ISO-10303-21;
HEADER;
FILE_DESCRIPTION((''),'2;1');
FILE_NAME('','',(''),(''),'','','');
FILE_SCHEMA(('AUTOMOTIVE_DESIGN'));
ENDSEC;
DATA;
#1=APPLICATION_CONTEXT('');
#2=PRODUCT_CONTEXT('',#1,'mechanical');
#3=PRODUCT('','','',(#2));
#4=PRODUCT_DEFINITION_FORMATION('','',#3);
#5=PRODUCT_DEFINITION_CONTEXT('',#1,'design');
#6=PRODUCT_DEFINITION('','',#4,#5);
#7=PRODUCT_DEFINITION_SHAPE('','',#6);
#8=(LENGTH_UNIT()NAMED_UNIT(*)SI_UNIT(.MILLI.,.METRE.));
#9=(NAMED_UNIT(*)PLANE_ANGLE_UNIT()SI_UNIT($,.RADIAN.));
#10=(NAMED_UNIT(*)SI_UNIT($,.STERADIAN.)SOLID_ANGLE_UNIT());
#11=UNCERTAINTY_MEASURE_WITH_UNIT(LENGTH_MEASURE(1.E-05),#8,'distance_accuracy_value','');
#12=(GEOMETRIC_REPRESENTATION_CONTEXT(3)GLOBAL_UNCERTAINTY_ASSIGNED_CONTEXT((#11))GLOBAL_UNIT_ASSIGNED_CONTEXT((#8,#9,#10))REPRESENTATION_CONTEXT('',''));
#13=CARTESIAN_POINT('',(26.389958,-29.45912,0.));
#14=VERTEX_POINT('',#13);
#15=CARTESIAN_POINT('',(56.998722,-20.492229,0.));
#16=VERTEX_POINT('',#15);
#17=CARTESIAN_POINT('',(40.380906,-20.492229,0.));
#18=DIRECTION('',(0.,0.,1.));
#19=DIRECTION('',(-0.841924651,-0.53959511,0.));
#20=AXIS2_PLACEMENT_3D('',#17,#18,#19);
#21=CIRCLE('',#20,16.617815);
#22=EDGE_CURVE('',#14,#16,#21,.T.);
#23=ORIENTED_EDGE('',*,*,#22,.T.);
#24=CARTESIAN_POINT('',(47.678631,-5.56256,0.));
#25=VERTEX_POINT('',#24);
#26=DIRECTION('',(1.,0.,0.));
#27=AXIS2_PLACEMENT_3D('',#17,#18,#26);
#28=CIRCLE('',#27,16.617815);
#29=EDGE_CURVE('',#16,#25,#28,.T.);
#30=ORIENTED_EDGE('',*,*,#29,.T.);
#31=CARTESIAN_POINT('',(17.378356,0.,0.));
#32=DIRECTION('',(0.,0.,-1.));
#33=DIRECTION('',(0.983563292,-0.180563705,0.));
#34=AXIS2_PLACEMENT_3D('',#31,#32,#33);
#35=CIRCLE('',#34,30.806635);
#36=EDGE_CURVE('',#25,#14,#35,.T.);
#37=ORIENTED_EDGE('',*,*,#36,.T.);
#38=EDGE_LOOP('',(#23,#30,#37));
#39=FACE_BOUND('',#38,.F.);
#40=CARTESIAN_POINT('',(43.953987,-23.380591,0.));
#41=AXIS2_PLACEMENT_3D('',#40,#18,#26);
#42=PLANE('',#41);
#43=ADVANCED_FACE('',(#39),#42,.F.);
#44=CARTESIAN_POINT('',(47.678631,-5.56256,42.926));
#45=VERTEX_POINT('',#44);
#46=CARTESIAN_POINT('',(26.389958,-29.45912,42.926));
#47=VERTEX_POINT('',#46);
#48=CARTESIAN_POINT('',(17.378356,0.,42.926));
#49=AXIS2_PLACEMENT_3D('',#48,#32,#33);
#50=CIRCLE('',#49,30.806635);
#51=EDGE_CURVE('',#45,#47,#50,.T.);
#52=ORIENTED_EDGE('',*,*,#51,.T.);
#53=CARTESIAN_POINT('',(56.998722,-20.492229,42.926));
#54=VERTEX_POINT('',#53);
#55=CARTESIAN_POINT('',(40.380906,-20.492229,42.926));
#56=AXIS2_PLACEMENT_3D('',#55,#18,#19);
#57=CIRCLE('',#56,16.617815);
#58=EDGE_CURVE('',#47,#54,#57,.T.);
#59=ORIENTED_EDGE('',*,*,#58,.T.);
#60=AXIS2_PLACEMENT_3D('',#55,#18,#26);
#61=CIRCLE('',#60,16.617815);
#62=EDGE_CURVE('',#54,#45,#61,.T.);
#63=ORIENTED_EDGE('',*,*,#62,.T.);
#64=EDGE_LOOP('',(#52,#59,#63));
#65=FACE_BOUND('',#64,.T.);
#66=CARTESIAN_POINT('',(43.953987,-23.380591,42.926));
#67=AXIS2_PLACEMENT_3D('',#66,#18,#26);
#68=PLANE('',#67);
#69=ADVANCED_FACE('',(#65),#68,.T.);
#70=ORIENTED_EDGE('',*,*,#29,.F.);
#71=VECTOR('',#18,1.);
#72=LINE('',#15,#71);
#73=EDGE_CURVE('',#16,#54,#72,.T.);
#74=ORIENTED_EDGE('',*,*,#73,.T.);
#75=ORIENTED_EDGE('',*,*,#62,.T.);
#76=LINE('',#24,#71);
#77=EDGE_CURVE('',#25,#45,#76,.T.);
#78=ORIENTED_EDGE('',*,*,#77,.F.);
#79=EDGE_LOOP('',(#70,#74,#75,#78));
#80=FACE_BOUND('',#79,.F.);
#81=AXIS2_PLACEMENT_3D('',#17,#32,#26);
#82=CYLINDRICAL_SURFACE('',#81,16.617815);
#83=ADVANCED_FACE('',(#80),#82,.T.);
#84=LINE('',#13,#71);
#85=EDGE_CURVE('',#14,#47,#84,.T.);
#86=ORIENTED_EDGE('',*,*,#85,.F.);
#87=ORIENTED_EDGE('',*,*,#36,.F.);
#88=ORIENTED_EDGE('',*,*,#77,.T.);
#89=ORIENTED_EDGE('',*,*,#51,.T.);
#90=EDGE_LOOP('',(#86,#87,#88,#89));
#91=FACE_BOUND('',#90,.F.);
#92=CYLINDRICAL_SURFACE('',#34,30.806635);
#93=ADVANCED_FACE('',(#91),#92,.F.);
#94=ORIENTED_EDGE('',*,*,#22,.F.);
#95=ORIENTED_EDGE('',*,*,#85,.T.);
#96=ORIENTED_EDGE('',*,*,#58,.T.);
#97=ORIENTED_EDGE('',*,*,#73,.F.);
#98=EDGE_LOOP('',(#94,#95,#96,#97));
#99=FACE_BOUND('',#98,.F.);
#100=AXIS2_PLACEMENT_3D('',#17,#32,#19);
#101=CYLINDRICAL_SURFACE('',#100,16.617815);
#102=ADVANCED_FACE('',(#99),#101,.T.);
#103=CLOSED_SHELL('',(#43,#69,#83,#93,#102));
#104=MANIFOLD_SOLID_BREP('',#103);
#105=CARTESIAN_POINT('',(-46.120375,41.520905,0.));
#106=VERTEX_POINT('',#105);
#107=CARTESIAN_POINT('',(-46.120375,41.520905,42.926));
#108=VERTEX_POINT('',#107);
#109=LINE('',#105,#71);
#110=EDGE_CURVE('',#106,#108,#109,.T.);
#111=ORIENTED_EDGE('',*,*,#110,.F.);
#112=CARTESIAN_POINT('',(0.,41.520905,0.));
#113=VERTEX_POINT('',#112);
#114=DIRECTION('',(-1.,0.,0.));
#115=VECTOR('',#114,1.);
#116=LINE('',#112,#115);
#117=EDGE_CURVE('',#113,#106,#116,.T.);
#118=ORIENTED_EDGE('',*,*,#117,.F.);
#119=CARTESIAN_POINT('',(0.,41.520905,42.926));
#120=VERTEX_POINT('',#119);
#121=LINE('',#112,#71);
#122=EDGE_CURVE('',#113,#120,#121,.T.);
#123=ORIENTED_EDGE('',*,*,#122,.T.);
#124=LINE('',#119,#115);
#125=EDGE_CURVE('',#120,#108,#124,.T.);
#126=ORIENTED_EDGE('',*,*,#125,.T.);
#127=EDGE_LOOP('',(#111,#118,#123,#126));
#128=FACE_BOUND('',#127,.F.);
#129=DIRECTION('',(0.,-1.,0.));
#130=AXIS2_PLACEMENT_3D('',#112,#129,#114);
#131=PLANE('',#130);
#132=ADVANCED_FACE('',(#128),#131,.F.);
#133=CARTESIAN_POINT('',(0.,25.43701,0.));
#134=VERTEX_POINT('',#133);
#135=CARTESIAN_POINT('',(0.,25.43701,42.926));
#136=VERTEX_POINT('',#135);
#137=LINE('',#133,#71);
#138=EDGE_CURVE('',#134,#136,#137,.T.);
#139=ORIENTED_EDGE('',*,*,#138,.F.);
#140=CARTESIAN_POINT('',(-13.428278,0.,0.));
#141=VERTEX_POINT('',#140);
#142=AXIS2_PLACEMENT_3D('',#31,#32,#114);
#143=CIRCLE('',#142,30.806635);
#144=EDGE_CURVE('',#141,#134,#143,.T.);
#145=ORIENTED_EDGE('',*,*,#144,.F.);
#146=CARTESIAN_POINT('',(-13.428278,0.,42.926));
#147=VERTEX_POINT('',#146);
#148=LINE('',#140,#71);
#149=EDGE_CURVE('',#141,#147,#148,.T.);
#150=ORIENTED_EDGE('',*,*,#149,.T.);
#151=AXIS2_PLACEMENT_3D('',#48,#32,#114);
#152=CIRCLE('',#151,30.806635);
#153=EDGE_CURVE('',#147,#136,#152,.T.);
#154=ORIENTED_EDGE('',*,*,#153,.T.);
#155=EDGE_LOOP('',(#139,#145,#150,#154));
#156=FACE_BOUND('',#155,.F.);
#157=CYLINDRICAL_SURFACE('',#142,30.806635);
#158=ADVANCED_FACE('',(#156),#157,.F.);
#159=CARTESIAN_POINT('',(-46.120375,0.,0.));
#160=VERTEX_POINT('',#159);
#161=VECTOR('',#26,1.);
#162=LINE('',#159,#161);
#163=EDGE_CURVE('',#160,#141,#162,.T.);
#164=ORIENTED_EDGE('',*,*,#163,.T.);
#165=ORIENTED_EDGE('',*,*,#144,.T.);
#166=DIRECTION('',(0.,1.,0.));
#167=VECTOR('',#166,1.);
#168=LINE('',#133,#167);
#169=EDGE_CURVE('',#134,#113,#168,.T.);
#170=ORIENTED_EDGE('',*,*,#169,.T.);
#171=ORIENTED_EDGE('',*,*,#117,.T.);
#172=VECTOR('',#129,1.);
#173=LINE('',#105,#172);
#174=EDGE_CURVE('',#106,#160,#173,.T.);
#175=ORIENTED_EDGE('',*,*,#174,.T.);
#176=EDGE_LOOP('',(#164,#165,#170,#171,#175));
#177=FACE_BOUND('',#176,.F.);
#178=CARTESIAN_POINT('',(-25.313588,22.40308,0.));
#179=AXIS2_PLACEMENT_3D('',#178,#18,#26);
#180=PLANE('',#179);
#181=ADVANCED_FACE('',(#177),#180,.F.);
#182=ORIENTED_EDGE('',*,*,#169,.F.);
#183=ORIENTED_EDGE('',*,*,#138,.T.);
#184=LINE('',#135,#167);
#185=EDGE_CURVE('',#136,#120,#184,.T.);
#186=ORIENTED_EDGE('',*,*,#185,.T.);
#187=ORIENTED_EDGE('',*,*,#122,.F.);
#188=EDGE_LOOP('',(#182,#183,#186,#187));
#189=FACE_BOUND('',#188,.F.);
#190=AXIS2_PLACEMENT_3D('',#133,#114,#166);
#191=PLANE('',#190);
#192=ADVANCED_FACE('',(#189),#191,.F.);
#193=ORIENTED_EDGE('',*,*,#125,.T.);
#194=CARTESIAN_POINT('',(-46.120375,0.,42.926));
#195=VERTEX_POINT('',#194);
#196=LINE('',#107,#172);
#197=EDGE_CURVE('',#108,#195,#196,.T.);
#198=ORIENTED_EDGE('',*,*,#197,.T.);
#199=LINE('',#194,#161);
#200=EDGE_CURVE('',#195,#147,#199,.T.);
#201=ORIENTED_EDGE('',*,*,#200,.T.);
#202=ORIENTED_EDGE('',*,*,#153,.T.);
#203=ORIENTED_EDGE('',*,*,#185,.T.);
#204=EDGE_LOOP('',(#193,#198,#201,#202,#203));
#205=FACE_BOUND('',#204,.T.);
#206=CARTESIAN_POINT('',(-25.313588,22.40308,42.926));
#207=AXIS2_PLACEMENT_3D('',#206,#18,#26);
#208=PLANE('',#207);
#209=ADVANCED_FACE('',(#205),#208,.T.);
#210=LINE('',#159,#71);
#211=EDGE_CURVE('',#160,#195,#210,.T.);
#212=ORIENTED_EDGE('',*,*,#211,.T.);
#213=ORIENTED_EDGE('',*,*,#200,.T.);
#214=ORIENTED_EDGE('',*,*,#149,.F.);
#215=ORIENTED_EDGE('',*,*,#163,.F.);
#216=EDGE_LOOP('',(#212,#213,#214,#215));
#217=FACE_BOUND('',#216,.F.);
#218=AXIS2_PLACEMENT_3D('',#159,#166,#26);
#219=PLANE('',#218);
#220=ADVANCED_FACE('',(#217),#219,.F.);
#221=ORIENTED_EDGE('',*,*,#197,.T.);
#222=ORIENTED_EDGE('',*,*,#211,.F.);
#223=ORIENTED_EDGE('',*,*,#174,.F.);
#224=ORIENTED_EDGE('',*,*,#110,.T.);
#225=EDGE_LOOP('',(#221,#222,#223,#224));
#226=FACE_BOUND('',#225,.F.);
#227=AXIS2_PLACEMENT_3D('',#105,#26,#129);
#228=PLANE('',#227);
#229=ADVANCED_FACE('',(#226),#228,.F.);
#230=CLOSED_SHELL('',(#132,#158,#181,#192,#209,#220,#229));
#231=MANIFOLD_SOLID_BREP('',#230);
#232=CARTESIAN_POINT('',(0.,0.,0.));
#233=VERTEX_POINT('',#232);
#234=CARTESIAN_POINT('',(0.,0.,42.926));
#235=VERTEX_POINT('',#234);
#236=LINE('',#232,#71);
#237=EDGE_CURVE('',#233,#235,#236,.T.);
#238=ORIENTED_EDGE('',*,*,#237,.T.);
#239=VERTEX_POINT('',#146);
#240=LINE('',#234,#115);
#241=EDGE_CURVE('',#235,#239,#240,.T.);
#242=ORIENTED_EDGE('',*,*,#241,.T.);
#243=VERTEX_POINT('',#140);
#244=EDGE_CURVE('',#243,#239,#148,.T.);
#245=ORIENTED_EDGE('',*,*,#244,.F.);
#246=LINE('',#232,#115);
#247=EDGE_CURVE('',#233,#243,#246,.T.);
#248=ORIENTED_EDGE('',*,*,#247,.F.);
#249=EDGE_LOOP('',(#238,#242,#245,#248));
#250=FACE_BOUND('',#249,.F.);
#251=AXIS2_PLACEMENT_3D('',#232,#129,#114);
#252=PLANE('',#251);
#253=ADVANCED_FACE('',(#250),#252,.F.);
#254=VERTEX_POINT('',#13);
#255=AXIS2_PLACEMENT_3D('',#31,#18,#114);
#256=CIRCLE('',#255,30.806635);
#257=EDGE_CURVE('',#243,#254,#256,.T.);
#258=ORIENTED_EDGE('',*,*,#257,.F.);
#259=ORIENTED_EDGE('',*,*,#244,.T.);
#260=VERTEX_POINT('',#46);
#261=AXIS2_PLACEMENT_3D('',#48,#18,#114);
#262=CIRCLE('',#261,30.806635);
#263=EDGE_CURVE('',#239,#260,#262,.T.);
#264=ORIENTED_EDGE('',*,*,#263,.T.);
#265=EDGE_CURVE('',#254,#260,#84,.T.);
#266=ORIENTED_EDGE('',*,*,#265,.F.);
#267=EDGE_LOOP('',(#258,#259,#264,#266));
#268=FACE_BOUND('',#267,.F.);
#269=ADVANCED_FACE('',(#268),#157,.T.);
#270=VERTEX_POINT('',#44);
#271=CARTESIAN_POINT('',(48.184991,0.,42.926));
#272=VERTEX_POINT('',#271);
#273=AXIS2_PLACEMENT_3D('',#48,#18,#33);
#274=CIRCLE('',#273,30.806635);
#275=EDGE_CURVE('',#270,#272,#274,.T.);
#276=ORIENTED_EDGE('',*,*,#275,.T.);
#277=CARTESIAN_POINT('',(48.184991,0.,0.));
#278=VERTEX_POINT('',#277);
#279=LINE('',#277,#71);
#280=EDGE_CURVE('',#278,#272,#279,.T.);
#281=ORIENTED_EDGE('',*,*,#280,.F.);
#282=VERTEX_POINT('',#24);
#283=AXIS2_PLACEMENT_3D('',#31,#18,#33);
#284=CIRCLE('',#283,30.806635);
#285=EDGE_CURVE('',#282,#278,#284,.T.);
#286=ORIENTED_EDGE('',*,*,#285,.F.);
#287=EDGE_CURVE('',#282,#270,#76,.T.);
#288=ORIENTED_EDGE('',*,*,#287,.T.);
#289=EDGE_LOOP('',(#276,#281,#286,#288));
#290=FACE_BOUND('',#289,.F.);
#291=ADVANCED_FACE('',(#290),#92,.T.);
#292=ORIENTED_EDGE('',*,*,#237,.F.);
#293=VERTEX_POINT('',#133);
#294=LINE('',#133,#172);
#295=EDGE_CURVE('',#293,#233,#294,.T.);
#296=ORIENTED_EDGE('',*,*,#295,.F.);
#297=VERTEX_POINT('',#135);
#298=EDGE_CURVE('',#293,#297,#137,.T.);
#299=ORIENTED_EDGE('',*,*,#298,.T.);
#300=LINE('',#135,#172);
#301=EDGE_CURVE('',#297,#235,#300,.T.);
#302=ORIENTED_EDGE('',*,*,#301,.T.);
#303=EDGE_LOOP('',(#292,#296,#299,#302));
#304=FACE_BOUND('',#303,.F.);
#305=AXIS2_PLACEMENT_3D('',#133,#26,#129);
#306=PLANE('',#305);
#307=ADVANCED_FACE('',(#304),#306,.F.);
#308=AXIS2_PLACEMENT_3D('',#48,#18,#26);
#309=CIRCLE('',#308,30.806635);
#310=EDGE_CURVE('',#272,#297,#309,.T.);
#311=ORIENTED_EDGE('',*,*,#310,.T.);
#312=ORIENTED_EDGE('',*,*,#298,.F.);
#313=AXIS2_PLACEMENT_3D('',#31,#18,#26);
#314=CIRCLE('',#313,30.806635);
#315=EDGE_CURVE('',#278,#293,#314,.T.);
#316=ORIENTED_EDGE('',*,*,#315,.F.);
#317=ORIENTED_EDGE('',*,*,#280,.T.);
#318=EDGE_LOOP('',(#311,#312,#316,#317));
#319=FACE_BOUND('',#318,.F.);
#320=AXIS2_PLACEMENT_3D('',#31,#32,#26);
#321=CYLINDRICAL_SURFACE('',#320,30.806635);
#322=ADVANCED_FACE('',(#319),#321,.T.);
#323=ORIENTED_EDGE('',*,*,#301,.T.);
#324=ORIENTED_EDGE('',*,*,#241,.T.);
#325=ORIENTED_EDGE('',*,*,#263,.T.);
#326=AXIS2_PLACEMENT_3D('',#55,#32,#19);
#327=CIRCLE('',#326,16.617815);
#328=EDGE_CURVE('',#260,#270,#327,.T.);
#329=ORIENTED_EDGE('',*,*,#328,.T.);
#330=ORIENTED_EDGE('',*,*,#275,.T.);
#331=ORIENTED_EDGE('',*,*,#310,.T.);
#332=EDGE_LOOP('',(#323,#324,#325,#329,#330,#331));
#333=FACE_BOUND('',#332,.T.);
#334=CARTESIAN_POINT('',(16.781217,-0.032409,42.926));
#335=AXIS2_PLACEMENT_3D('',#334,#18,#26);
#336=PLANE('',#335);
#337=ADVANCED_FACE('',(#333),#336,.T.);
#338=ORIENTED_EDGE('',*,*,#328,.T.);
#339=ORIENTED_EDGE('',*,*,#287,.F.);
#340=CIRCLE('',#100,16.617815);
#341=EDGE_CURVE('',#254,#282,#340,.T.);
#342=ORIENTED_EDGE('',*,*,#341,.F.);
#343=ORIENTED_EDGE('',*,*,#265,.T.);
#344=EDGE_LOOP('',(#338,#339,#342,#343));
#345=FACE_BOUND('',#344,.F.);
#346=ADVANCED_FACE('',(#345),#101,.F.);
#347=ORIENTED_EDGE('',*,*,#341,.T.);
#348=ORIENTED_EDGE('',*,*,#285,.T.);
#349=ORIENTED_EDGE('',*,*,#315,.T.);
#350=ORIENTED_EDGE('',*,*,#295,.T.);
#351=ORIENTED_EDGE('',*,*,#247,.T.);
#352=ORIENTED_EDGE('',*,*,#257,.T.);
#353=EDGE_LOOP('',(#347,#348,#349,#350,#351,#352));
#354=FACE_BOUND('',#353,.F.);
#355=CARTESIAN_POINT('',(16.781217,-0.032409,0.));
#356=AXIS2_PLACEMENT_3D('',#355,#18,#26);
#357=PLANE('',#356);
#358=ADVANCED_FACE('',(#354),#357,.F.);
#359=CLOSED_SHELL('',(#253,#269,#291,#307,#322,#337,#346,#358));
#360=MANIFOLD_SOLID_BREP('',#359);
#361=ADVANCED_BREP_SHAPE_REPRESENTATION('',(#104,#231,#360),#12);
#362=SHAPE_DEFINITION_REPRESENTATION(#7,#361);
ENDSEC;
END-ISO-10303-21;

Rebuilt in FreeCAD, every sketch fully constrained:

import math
import FreeCAD as App
import Part
import Sketcher
from FreeCAD import Vector
Q = App.Units.Quantity

doc = App.newDocument("Part")
body = doc.addObject("PartDesign::Body", "Body")

sketch1 = body.newObject("Sketcher::SketchObject", "Sketch")
sketch1.AttachmentSupport = (doc.getObject("XY_Plane"), [""])
sketch1.MapMode = "FlatFace"
sketch1.addGeometry([
    Part.LineSegment(Vector(-46, 0, 0), Vector(-13, 0, 0)),
    Part.ArcOfCircle(Part.Circle(Vector(17, 0, 0), Vector(0, 0, 1), 31), math.radians(124), math.radians(180)),
    Part.LineSegment(Vector(0, 25, 0), Vector(0, 42, 0)),
    Part.LineSegment(Vector(0, 42, 0), Vector(-46, 42, 0)),
    Part.LineSegment(Vector(-46, 42, 0), Vector(-46, 0, 0)),
], False)
sketch1.addConstraint([
    Sketcher.Constraint("Coincident", 0, 2, 1, 2),
    Sketcher.Constraint("Coincident", 1, 1, 2, 1),
    Sketcher.Constraint("Coincident", 2, 2, 3, 1),
    Sketcher.Constraint("Coincident", 3, 2, 4, 1),
    Sketcher.Constraint("Coincident", 4, 2, 0, 1),
    Sketcher.Constraint("Horizontal", 0),
    Sketcher.Constraint("Vertical", 2),
    Sketcher.Constraint("Horizontal", 3),
    Sketcher.Constraint("Vertical", 4),
    Sketcher.Constraint("PointOnObject", 1, 3, -1),
    Sketcher.Constraint("PointOnObject", 0, 2, -1),
    Sketcher.Constraint("PointOnObject", 1, 1, -2),
    Sketcher.Constraint("Radius", 1, Q("30.806635 mm")),
    Sketcher.Constraint("DistanceX", 0, 1, 0, 2, Q("32.692097 mm")),
    Sketcher.Constraint("DistanceX", 3, 2, 3, 1, Q("46.120375 mm")),
    Sketcher.Constraint("DistanceY", 2, 1, 2, 2, Q("16.083895 mm")),
])
pad1 = body.newObject("PartDesign::Pad", "Pad")
pad1.Profile = sketch1
pad1.Length = Q("1.69 in")
body2 = doc.addObject("PartDesign::Body", "Body001")

sketch2 = body2.newObject("Sketcher::SketchObject", "Sketch001")
sketch2.AttachmentSupport = (doc.getObject("XY_Plane001"), [""])
sketch2.MapMode = "FlatFace"
sketch2.addGeometry([
    Part.ArcOfCircle(Part.Circle(Vector(17, 0, 0), Vector(0, 0, 1), 31), math.radians(-73), math.radians(-10)),
    Part.ArcOfCircle(Part.Circle(Vector(40, -20, 0), Vector(0, 0, 1), 17), math.radians(-147), math.radians(0)),
    Part.ArcOfCircle(Part.Circle(Vector(40, -20, 0), Vector(0, 0, 1), 17), math.radians(0), math.radians(64)),
], False)
sketch2.addConstraint([
    Sketcher.Constraint("Coincident", 0, 1, 1, 1),
    Sketcher.Constraint("Tangent", 1, 2, 2, 1),
    Sketcher.Constraint("Coincident", 2, 2, 0, 2),
    Sketcher.Constraint("Equal", 1, 2),
    Sketcher.Constraint("PointOnObject", 0, 3, -1),
    Sketcher.Constraint("Horizontal", 2, 3, 1, 2),
    Sketcher.Constraint("Radius", 0, Q("30.806635 mm")),
    Sketcher.Constraint("Radius", 1, Q("16.617815 mm")),
    Sketcher.Constraint("DistanceX", 0, 3, 0, 1, Q("9.011602 mm")),
    Sketcher.Constraint("DistanceY", 1, 3, -1, 1, Q("20.492229 mm")),
    Sketcher.Constraint("DistanceX", -1, 1, 0, 1, Q("26.389958 mm")),
])
pad2 = body2.newObject("PartDesign::Pad", "Pad001")
pad2.Profile = sketch2
pad2.Length = Q("1.69 in")
body3 = doc.addObject("PartDesign::Body", "Body002")

sketch3 = body3.newObject("Sketcher::SketchObject", "Sketch002")
sketch3.AttachmentSupport = (doc.getObject("XY_Plane002"), [""])
sketch3.MapMode = "FlatFace"
sketch3.addGeometry([
    Part.LineSegment(Vector(0, 25, 0), Vector(0, 0, 0)),
    Part.LineSegment(Vector(0, 0, 0), Vector(-13, 0, 0)),
    Part.ArcOfCircle(Part.Circle(Vector(17, 0, 0), Vector(0, 0, 1), 31), math.radians(180), math.radians(287)),
    Part.ArcOfCircle(Part.Circle(Vector(40, -20, 0), Vector(0, 0, 1), 17), math.radians(64), math.radians(213)),
    Part.ArcOfCircle(Part.Circle(Vector(17, 0, 0), Vector(0, 0, 1), 31), math.radians(-10.4), math.radians(0)),
    Part.ArcOfCircle(Part.Circle(Vector(17, 0, 0), Vector(0, 0, 1), 31), math.radians(0), math.radians(124)),
], False)
sketch3.addConstraint([
    Sketcher.Constraint("Coincident", 0, 2, 1, 1),
    Sketcher.Constraint("Coincident", 1, 2, 2, 1),
    Sketcher.Constraint("Coincident", 2, 2, 3, 2),
    Sketcher.Constraint("Coincident", 3, 1, 4, 1),
    Sketcher.Constraint("Tangent", 4, 2, 5, 1),
    Sketcher.Constraint("Coincident", 5, 2, 0, 1),
    Sketcher.Constraint("Vertical", 0),
    Sketcher.Constraint("Horizontal", 1),
    Sketcher.Constraint("Coincident", 0, 2, -1, 1),
    Sketcher.Constraint("Coincident", 4, 3, 2, 3),
    Sketcher.Constraint("Equal", 2, 4),
    Sketcher.Constraint("Equal", 4, 5),
    Sketcher.Constraint("PointOnObject", 2, 3, -1),
    Sketcher.Constraint("PointOnObject", 4, 2, -1),
    Sketcher.Constraint("Radius", 2, Q("30.806635 mm")),
    Sketcher.Constraint("Radius", 3, Q("16.617815 mm")),
    Sketcher.Constraint("DistanceX", 1, 2, 1, 1, Q("13.428278 mm")),
    Sketcher.Constraint("DistanceX", 2, 3, 2, 2, Q("9.011602 mm")),
    Sketcher.Constraint("DistanceY", 3, 3, -1, 1, Q("20.492229 mm")),
])
pad3 = body3.newObject("PartDesign::Pad", "Pad002")
pad3.Profile = sketch3
pad3.Length = Q("1.69 in")

doc.recompute()
